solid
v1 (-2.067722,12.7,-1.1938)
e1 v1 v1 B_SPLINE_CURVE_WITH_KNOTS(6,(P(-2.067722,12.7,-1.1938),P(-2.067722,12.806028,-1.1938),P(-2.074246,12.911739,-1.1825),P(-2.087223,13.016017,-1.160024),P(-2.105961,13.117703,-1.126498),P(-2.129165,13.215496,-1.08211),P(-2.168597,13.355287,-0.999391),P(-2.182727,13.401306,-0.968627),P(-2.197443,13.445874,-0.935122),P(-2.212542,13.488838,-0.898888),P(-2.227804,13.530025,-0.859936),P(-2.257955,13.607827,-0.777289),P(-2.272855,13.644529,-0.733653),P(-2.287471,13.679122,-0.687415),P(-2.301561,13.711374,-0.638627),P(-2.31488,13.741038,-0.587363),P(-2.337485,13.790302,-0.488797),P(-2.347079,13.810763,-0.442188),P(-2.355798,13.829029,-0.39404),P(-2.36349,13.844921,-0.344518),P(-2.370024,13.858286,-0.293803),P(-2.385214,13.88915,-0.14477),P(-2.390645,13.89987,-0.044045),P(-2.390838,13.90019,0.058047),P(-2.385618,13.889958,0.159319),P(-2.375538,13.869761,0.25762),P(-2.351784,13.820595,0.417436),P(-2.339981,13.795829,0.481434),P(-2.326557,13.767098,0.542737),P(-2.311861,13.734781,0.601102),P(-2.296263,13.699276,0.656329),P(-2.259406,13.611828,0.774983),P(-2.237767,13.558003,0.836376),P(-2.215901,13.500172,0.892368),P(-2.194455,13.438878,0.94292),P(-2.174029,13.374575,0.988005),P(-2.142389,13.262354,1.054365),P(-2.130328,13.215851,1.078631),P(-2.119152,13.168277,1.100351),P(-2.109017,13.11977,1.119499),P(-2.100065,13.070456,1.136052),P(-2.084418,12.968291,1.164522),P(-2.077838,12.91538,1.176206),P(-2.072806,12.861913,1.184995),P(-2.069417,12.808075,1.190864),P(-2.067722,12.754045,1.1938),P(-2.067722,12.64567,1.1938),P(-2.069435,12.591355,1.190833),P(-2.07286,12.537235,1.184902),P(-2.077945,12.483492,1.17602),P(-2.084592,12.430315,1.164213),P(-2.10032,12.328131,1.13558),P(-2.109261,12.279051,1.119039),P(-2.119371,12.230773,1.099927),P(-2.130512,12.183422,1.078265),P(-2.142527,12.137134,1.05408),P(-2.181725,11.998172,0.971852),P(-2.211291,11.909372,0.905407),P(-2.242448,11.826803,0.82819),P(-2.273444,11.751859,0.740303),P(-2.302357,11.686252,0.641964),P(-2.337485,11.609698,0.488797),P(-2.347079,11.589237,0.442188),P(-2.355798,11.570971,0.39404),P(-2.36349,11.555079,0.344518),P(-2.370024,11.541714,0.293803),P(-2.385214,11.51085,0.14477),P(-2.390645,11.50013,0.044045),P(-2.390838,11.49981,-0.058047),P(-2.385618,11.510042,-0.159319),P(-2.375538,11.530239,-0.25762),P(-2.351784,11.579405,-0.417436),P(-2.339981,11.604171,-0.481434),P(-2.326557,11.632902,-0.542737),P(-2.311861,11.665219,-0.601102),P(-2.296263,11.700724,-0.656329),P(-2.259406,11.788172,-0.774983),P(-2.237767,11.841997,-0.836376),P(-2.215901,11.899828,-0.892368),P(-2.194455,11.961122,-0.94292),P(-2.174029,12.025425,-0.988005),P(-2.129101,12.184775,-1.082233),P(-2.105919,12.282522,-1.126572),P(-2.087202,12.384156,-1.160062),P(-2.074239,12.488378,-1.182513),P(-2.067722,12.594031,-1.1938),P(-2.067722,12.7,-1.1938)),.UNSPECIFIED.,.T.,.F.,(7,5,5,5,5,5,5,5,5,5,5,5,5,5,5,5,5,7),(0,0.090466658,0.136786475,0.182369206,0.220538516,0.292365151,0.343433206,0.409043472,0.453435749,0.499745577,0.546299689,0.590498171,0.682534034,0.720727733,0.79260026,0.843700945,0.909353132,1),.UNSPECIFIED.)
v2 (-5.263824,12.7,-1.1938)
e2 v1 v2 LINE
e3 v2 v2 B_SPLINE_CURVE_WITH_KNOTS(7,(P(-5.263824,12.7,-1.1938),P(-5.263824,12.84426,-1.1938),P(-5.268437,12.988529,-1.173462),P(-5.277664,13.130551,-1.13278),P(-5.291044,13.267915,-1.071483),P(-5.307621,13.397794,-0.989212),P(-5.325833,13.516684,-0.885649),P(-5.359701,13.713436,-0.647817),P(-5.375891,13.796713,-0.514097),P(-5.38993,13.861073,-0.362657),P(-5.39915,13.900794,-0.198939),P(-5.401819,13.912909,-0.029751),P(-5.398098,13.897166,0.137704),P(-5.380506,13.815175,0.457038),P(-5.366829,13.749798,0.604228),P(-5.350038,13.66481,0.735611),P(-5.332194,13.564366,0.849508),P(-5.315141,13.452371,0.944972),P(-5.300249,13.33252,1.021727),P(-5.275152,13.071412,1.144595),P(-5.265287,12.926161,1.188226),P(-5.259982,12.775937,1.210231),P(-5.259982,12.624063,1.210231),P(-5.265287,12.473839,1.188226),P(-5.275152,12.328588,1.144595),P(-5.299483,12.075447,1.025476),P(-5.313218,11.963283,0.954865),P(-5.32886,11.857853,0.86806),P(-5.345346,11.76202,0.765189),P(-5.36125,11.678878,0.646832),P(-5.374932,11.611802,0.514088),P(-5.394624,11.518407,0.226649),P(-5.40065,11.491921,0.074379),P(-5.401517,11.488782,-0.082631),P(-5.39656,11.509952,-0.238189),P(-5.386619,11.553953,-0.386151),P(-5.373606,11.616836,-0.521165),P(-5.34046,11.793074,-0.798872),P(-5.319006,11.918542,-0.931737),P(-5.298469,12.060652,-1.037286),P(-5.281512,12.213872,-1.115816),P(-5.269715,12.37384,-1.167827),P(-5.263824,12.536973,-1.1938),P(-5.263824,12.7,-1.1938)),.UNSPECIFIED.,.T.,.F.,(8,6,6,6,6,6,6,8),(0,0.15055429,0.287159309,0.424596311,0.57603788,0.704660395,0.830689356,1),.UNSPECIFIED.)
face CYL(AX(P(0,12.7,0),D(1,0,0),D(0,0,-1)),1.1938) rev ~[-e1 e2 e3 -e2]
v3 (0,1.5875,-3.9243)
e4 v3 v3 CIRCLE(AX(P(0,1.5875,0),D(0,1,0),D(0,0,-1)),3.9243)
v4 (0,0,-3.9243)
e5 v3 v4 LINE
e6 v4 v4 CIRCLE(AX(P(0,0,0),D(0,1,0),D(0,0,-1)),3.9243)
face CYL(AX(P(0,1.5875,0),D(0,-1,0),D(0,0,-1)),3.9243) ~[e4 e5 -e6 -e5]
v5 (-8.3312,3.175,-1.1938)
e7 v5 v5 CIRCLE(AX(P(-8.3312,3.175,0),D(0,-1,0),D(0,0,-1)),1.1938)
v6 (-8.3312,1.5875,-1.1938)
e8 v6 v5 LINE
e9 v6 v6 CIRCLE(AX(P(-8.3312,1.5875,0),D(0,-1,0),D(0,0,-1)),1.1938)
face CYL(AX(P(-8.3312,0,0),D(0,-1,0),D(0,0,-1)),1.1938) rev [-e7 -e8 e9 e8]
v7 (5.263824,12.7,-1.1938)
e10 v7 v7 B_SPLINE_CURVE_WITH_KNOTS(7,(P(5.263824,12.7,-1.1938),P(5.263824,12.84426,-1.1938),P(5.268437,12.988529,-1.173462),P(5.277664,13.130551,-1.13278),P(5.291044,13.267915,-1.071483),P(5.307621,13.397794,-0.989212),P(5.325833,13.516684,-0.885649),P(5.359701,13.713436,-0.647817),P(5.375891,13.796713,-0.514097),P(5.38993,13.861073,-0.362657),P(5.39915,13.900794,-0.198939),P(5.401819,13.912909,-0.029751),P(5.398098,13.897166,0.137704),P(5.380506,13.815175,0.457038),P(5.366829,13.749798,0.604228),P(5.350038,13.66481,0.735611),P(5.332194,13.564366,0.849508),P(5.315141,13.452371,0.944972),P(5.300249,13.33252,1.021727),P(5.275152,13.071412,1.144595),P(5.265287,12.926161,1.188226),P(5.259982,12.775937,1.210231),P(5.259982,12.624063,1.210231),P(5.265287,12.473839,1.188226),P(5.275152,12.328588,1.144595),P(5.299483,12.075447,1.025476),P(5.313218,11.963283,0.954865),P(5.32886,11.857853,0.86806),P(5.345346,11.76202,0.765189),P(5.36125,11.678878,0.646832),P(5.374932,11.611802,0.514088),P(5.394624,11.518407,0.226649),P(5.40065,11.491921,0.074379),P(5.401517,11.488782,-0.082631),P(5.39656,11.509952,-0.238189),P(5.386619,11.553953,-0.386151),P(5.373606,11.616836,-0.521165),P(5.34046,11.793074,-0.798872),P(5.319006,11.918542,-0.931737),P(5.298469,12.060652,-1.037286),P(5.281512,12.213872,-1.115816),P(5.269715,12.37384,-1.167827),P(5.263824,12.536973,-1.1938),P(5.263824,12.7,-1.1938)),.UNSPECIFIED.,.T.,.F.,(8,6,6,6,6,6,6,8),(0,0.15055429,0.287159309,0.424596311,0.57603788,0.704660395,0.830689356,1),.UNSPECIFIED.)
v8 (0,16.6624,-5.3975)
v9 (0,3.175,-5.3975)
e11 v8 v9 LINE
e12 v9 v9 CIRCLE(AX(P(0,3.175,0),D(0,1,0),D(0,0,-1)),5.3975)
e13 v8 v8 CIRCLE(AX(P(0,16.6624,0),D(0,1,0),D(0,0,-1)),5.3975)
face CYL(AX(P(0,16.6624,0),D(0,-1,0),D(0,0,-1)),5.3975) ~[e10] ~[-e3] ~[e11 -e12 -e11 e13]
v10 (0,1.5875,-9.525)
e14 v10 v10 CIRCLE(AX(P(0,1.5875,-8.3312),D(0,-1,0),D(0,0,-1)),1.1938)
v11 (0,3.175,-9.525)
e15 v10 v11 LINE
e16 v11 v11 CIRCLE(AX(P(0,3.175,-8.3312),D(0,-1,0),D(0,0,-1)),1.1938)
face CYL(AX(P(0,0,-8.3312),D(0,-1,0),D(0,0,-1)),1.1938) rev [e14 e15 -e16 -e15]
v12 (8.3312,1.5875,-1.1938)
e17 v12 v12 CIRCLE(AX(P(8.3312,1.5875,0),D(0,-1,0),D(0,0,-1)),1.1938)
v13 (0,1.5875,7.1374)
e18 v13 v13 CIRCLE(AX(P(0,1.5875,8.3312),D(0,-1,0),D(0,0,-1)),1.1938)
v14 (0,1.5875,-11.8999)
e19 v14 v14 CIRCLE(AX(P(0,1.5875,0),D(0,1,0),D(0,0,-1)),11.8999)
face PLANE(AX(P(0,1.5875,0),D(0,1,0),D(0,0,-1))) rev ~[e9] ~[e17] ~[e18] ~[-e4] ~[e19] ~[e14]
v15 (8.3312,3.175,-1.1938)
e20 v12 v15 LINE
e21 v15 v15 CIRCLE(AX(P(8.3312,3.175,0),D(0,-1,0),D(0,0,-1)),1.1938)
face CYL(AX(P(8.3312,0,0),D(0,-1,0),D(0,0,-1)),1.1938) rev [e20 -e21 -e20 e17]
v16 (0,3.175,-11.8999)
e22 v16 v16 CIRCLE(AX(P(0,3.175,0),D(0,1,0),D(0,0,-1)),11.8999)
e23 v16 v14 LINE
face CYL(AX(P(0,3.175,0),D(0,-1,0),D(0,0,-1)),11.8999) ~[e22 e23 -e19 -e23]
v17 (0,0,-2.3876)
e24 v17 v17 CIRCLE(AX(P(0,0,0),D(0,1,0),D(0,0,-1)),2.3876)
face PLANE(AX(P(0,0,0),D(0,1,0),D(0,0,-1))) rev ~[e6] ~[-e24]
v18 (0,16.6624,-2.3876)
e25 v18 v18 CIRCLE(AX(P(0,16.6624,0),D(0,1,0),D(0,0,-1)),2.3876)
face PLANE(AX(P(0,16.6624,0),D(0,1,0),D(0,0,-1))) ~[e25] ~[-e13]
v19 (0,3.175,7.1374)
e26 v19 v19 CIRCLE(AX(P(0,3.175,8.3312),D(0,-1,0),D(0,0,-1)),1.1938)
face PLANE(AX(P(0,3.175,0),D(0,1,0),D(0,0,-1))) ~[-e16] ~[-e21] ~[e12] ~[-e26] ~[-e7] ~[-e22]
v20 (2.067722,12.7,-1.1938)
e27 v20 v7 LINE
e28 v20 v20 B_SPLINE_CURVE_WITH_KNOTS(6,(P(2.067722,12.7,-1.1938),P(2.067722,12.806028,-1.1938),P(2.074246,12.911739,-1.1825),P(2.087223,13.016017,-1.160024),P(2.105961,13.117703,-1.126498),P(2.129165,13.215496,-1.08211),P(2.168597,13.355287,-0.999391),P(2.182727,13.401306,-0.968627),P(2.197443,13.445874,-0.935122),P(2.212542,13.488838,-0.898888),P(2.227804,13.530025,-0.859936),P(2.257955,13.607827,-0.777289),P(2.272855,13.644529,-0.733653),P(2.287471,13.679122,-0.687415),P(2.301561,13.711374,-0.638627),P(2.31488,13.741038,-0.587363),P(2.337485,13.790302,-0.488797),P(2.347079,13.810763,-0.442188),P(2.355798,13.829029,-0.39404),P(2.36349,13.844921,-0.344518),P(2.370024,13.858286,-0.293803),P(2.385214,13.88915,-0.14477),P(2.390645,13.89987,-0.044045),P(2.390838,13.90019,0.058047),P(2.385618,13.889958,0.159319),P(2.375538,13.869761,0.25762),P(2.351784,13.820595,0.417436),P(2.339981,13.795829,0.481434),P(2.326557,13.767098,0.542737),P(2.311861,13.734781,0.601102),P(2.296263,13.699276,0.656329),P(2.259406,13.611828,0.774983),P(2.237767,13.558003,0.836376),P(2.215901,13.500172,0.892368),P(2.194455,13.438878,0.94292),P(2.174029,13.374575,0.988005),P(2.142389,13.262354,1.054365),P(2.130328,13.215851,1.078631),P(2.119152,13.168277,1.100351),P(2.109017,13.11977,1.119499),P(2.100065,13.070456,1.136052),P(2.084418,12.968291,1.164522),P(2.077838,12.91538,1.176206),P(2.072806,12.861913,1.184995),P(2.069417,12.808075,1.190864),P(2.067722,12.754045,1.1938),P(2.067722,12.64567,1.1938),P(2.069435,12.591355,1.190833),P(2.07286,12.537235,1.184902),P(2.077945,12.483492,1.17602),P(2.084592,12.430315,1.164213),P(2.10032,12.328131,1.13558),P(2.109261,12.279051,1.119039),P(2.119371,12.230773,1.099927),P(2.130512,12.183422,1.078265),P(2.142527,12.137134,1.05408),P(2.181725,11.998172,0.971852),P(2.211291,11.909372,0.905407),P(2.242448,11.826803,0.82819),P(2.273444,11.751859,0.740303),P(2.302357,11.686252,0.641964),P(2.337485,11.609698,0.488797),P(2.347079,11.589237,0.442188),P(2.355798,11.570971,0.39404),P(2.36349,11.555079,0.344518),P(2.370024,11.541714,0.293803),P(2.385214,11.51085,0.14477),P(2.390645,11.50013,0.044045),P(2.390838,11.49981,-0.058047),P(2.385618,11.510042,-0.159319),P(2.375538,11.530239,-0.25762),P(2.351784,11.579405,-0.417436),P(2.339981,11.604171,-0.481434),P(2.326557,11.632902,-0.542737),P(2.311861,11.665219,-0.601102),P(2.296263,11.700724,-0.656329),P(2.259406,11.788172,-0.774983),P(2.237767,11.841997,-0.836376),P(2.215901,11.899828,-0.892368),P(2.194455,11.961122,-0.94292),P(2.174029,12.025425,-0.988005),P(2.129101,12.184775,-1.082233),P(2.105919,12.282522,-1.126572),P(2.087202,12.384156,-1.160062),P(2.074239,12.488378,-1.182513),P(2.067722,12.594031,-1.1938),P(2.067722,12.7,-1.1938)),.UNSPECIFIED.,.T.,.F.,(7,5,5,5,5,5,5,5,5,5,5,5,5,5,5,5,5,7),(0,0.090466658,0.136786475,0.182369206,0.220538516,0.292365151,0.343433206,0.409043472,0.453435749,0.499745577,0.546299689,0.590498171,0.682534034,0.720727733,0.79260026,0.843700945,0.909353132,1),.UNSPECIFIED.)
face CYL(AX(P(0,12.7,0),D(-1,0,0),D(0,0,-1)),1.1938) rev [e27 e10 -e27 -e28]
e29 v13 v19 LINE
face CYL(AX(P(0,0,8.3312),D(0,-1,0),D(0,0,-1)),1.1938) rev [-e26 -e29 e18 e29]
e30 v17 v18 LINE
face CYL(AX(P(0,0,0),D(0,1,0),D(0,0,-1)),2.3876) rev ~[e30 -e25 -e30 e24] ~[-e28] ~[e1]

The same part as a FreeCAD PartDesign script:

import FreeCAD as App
import Part
import Sketcher
Q = App.Units.Quantity


def add_polygon(sketch, points):
    """Adds a closed chain of lines whose ends are joined by coincident constraints."""
    first, n = sketch.GeometryCount, len(points)
    for a, b in zip(points, points[1:] + points[:1]):
        sketch.addGeometry(Part.LineSegment(App.Vector(*a, 0), App.Vector(*b, 0)), False)
    for i in range(n):
        sketch.addConstraint(Sketcher.Constraint("Coincident", first + i, 2, first + (i + 1) % n, 1))

doc = App.newDocument("Part")
params = doc.addObject("Spreadsheet::Sheet", "Params")
for row, (alias, value) in enumerate([
    ("sketch1_width", "0.0625 in"),
    ("sketch1_width2", "0.531 in"),
    ("sketch1_height", "0.314 in"),
    ("sketch1_height2", "0.256 in"),
    ("revolution_angle", "360 deg"),
    ("sketch2_diameter", "0.094 in"),
    ("sketch3_diameter", "0.094 in"),
], start=1):
    params.set(f"A{row}", alias)
    params.set(f"B{row}", "=" + value)
    params.setAlias(f"B{row}", alias)

body = doc.addObject("PartDesign::Body", "Body")

sketch1 = body.newObject("Sketcher::SketchObject", "Sketch")
sketch1.AttachmentSupport = (doc.getObject("YZ_Plane"), [""])
sketch1.MapMode = "FlatFace"
add_polygon(sketch1, [(0, -2.4), (0, -3.9), (1.6, -3.9), (1.6, -11.9), (3.2, -11.9), (3.2, -5.4), (16.7, -5.4), (16.7, -2.4)])
sketch1.addConstraint([
    Sketcher.Constraint("Vertical", 0),
    Sketcher.Constraint("Horizontal", 1),
    Sketcher.Constraint("Vertical", 2),
    Sketcher.Constraint("Horizontal", 3),
    Sketcher.Constraint("Vertical", 4),
    Sketcher.Constraint("Horizontal", 5),
    Sketcher.Constraint("Vertical", 6),
    Sketcher.Constraint("Horizontal", 7),
    Sketcher.Constraint("PointOnObject", 0, 2, -2),
    Sketcher.Constraint("Equal", 1, 3),
    Sketcher.Constraint("DistanceX", 1, 1, 1, 2, Q("0.0625 in")),
    Sketcher.Constraint("DistanceX", 5, 1, 5, 2, Q("0.531 in")),
    Sketcher.Constraint("DistanceY", 2, 2, 2, 1, Q("0.314 in")),
    Sketcher.Constraint("DistanceY", 4, 1, 4, 2, Q("0.256 in")),
    Sketcher.Constraint("DistanceY", 0, 2, 0, 1, Q("0.0605 in")),
    Sketcher.Constraint("DistanceY", 6, 2, -1, 1, Q("0.094 in")),
])
sketch1.setExpression("Constraints[18]", "Params.sketch1_width")
sketch1.setExpression("Constraints[19]", "Params.sketch1_width2")
sketch1.setExpression("Constraints[20]", "Params.sketch1_height")
sketch1.setExpression("Constraints[21]", "Params.sketch1_height2")
revolution = body.newObject("PartDesign::Revolution", "Revolution")
revolution.Profile = sketch1
revolution.ReferenceAxis = (sketch1, ["H_Axis"])
revolution.setExpression("Angle", "Params.revolution_angle")

sketch2 = body.newObject("Sketcher::SketchObject", "Sketch001")
sketch2.AttachmentSupport = (doc.getObject("YZ_Plane"), [""])
sketch2.MapMode = "FlatFace"
sketch2.addGeometry(Part.Circle(App.Vector(12.7, 0, 0), App.Vector(0, 0, 1), 1.2), False)
sketch2.addConstraint([
    Sketcher.Constraint("PointOnObject", 0, 3, -1),
    Sketcher.Constraint("Diameter", 0, Q("0.094 in")),
    Sketcher.Constraint("DistanceX", -1, 1, 0, 3, Q("0.5 in")),
])
sketch2.setExpression("Constraints[1]", "Params.sketch2_diameter")
pocket1 = body.newObject("PartDesign::Pocket", "Pocket")
pocket1.Profile = sketch2
pocket1.Type = "ThroughAll"
pocket1.Midplane = True

sketch3 = body.newObject("Sketcher::SketchObject", "Sketch002")
sketch3.AttachmentSupport = (doc.getObject("XZ_Plane"), [""])
sketch3.MapMode = "FlatFace"
sketch3.addGeometry([
    Part.Circle(App.Vector(-8.3, 0, 0), App.Vector(0, 0, 1), 1.2),
    Part.Circle(App.Vector(0, -8.3, 0), App.Vector(0, 0, 1), 1.2),
    Part.Circle(App.Vector(0, 8.3, 0), App.Vector(0, 0, 1), 1.2),
    Part.Circle(App.Vector(8.3, 0, 0), App.Vector(0, 0, 1), 1.2),
], False)
sketch3.addConstraint([
    Sketcher.Constraint("Equal", 0, 1),
    Sketcher.Constraint("Equal", 1, 2),
    Sketcher.Constraint("Equal", 2, 3),
    Sketcher.Constraint("Symmetric", 1, 3, 2, 3, -1, 1),
    Sketcher.Constraint("Symmetric", 0, 3, 3, 3, -1, 1),
    Sketcher.Constraint("PointOnObject", 0, 3, -1),
    Sketcher.Constraint("PointOnObject", 1, 3, -2),
    Sketcher.Constraint("Diameter", 0, Q("0.094 in")),
    Sketcher.Constraint("DistanceX", 0, 3, -1, 1, Q("0.328 in")),
    Sketcher.Constraint("DistanceY", 1, 3, -1, 1, Q("0.328 in")),
])
sketch3.setExpression("Constraints[7]", "Params.sketch3_diameter")
pocket2 = body.newObject("PartDesign::Pocket", "Pocket001")
pocket2.Profile = sketch3
pocket2.Type = "ThroughAll"

doc.recompute()
